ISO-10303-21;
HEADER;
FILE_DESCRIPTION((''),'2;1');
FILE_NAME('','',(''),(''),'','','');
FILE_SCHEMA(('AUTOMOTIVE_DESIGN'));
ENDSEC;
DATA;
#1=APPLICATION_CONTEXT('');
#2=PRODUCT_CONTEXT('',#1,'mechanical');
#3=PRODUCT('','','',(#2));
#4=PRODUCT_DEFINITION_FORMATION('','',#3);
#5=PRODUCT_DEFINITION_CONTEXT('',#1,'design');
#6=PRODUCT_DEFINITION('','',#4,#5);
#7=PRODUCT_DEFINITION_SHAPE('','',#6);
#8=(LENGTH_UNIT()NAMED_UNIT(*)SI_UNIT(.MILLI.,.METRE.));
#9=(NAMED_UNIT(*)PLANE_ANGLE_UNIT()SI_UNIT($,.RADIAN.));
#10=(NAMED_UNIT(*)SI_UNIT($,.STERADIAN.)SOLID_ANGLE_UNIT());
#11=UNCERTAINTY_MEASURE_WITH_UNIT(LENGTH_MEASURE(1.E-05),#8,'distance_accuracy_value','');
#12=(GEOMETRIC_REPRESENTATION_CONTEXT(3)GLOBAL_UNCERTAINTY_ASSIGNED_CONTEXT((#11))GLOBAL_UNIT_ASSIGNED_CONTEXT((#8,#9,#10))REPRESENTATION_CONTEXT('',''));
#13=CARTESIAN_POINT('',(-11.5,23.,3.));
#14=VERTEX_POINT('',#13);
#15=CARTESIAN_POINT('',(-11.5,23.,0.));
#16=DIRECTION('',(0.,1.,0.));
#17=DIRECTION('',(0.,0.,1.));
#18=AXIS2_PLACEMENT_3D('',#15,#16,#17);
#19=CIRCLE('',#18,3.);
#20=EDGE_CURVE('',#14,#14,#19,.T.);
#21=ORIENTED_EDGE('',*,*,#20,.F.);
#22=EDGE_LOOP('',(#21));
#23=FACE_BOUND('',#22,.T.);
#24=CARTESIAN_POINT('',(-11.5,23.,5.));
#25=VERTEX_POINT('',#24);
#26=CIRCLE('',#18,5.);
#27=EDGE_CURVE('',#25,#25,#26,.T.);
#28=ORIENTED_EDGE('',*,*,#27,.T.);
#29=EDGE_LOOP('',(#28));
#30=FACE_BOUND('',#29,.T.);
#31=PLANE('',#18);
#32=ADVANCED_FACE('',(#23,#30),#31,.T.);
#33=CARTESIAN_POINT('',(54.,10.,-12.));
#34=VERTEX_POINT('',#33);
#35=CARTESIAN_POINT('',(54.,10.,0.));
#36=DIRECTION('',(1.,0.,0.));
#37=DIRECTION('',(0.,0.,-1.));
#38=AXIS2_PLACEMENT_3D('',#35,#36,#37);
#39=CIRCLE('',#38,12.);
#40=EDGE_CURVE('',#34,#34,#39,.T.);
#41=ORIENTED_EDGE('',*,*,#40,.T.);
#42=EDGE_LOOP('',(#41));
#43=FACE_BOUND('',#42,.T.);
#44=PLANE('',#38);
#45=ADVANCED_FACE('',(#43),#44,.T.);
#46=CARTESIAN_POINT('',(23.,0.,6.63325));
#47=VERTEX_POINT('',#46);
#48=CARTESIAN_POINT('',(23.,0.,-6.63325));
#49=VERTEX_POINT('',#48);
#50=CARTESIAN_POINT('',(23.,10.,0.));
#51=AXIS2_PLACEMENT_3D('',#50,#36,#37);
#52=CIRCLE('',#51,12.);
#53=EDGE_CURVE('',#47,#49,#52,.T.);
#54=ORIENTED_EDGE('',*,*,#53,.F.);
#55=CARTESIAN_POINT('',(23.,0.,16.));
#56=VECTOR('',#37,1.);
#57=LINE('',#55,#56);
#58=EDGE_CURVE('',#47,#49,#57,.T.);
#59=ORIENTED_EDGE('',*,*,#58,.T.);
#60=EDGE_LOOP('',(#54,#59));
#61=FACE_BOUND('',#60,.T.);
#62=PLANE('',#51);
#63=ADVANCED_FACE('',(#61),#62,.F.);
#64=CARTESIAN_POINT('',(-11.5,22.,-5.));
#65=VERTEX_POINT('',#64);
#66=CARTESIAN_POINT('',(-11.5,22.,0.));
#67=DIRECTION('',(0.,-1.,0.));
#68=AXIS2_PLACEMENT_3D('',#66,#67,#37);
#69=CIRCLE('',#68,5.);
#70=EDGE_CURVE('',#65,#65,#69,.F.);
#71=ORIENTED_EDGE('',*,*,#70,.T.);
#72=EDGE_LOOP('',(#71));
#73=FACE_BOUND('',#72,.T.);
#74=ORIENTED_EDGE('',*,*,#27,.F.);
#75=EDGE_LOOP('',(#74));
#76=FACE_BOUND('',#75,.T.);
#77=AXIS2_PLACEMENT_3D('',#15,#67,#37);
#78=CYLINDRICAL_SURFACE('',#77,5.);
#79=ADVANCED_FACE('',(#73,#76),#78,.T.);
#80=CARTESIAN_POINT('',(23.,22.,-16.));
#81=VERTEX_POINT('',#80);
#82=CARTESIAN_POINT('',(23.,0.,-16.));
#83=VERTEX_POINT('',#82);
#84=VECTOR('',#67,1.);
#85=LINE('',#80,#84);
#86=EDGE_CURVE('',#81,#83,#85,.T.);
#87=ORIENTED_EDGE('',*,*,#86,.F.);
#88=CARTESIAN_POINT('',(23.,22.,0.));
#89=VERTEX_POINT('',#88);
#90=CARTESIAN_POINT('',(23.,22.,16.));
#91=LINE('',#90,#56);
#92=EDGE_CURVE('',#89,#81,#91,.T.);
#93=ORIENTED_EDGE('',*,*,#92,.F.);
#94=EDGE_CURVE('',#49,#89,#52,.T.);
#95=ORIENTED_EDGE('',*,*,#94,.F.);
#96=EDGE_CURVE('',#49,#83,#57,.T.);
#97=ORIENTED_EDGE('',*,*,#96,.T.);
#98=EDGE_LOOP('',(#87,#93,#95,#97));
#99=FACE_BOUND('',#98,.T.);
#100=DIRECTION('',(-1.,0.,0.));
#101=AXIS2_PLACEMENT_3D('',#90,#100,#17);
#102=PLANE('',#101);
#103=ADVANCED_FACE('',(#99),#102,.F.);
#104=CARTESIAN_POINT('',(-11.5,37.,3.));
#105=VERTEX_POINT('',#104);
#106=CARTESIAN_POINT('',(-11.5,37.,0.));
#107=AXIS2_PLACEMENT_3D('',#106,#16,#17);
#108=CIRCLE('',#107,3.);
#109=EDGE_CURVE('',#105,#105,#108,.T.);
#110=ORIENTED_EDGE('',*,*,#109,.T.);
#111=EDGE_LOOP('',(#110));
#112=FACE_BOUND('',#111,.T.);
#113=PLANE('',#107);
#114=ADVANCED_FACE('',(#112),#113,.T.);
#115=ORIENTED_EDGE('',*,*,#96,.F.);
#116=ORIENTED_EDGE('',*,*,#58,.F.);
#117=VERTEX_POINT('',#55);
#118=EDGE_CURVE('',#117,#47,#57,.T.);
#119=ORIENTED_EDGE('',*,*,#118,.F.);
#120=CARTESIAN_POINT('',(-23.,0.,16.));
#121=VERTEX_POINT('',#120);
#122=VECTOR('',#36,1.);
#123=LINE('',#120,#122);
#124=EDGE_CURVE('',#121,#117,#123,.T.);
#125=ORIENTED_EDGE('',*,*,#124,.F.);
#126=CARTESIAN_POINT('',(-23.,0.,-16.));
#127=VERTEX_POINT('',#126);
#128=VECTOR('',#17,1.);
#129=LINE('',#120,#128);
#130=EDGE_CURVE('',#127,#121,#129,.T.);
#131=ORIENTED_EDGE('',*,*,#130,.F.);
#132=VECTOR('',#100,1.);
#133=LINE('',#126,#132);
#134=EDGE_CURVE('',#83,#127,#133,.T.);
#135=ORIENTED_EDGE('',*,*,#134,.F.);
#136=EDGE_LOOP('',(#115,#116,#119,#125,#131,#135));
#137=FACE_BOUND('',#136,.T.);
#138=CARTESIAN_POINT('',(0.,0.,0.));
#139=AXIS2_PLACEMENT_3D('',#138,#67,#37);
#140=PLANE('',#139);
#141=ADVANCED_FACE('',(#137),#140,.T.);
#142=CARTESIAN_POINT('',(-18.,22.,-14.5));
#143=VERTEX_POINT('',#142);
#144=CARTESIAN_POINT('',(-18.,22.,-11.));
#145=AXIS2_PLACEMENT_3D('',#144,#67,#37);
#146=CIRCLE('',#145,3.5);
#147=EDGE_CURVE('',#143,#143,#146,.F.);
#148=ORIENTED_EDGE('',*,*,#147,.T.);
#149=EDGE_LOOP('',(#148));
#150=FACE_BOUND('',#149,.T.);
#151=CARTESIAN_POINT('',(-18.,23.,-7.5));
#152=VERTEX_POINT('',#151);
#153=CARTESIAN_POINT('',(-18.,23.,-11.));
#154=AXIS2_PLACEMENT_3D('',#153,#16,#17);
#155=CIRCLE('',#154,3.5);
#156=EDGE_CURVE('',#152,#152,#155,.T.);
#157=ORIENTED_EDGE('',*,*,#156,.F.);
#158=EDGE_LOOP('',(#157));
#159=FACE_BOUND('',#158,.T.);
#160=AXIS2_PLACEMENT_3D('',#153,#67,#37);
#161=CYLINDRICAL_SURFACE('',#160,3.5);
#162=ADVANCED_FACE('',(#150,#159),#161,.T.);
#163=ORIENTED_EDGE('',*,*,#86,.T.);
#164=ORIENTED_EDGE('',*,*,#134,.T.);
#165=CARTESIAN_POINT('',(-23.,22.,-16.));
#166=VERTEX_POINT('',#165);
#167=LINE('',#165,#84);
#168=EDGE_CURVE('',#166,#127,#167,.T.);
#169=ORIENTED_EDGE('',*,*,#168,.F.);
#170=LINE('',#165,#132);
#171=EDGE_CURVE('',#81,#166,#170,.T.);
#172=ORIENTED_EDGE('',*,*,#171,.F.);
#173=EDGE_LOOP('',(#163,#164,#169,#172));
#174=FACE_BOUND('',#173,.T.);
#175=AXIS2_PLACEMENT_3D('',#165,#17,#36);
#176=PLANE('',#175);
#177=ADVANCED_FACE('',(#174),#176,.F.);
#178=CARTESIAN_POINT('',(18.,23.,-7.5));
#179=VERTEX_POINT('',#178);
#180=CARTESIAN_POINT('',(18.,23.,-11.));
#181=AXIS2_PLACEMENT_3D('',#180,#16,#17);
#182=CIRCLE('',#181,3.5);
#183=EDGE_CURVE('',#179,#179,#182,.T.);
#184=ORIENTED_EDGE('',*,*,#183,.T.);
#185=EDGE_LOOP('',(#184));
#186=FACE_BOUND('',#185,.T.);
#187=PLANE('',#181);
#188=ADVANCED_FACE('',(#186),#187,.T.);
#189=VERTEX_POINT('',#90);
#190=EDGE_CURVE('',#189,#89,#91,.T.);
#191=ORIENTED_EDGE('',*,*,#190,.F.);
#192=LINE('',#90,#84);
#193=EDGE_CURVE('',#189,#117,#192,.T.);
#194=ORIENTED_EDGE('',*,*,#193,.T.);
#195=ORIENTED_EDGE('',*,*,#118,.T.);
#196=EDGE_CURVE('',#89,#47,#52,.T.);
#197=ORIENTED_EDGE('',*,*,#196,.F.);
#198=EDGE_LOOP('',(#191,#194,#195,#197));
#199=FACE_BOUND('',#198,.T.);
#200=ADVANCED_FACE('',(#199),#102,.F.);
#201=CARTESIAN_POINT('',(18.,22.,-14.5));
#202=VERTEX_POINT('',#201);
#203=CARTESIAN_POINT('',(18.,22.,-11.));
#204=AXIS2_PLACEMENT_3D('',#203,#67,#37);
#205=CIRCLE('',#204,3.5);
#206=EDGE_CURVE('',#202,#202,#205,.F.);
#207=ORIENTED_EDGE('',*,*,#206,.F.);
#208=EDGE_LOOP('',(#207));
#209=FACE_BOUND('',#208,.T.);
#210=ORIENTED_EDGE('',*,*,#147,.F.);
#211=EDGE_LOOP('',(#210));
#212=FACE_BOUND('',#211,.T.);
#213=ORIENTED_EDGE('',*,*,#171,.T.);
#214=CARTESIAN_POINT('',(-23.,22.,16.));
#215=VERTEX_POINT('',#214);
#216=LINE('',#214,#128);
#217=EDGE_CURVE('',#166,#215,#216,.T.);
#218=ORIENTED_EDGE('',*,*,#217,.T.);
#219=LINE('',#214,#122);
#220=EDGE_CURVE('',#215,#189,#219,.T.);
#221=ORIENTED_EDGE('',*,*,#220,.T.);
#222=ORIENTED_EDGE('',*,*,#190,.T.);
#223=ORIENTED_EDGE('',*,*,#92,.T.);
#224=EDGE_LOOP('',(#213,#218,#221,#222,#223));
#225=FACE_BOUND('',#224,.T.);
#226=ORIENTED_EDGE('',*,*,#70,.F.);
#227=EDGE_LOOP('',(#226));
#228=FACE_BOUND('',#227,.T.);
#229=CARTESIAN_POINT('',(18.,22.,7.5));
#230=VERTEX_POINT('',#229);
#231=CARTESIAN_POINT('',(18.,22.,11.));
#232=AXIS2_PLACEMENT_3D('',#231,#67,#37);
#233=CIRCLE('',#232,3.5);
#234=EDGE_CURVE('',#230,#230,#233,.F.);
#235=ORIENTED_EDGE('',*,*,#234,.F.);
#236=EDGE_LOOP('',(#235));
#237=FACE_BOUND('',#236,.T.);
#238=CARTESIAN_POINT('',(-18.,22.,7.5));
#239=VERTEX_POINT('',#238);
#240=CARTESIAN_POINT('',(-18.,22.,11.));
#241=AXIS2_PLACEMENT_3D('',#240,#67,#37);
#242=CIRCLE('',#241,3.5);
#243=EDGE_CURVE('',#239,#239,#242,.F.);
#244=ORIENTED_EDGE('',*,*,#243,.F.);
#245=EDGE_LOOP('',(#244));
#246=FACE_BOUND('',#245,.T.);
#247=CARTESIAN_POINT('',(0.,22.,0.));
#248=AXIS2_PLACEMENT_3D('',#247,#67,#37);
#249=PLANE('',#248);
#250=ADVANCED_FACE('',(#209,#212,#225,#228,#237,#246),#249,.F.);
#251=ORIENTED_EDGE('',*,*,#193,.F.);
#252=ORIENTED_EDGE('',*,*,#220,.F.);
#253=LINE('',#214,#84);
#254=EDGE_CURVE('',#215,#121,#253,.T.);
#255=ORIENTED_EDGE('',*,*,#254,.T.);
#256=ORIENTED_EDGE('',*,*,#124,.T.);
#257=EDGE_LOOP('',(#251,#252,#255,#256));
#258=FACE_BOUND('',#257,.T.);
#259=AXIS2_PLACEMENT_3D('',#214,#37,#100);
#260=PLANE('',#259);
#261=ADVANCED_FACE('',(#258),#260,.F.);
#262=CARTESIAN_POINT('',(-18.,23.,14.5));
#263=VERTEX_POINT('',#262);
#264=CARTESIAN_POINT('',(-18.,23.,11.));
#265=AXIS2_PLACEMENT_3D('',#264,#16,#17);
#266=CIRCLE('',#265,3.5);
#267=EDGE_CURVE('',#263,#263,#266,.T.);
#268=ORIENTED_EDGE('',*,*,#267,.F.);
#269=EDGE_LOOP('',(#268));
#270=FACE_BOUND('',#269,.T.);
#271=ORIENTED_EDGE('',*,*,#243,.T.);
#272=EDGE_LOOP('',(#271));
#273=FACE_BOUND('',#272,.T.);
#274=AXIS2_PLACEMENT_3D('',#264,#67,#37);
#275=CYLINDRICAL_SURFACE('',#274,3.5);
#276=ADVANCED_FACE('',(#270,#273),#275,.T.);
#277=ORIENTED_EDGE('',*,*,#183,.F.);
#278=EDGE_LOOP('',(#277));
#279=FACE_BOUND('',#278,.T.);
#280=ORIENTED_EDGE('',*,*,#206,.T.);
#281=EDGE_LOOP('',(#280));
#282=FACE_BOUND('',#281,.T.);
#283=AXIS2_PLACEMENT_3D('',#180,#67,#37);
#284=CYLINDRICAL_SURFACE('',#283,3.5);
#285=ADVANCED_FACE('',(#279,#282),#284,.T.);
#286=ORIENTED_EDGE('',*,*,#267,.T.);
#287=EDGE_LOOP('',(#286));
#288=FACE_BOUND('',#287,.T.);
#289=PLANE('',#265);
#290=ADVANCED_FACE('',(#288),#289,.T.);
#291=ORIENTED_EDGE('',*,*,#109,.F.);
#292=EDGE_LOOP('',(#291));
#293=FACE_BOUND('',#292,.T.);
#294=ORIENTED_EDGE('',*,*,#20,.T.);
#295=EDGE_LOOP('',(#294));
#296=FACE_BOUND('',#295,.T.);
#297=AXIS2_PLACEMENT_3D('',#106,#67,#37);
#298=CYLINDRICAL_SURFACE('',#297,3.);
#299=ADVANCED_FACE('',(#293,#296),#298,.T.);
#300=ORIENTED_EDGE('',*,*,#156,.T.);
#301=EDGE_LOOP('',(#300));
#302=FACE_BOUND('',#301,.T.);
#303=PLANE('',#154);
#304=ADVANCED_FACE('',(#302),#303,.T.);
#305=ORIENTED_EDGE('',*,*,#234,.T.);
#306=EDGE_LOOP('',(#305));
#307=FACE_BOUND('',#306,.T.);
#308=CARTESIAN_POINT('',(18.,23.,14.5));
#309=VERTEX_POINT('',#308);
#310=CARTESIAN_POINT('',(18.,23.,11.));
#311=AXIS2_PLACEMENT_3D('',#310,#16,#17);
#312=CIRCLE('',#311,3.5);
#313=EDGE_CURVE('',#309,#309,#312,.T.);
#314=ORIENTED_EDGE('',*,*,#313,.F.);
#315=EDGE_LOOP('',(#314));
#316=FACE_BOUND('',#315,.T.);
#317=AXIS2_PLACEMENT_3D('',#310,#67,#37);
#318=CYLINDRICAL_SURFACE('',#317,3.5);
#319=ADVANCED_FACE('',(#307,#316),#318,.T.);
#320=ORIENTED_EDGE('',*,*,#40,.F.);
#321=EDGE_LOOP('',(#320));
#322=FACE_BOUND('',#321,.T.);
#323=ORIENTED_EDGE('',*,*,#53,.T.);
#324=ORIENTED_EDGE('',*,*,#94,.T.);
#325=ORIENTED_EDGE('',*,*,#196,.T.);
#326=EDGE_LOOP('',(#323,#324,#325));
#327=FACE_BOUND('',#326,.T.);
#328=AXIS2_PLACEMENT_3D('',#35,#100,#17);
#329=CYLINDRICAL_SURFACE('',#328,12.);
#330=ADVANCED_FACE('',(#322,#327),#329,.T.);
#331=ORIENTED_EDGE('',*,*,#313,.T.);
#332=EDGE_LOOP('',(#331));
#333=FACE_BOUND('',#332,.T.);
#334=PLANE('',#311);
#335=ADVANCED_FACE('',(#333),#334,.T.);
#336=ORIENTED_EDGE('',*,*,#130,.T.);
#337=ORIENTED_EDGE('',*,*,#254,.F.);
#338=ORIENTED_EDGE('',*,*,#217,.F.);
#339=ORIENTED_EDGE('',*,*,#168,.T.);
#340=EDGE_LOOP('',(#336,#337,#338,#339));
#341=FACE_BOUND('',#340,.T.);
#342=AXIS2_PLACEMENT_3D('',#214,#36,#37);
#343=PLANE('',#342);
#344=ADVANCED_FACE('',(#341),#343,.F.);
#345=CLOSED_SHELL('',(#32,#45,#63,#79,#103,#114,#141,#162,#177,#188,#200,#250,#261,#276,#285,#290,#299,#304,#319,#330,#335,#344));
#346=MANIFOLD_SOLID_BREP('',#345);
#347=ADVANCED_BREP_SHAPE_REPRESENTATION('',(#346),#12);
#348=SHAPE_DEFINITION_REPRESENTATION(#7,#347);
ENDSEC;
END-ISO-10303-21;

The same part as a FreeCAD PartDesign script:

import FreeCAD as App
import Part
import Sketcher
from FreeCAD import Vector
Q = App.Units.Quantity

doc = App.newDocument("Part")
body = doc.addObject("PartDesign::Body", "Body")

sketch1 = doc.addObject("Sketcher::SketchObject", "Sketch")
body.addObject(sketch1)
sketch1.AttachmentSupport = (doc.XZ_Plane, [""])
sketch1.MapMode = "FlatFace"
sketch1.addGeometry([
    Part.LineSegment(Vector(-23, -16, 0), Vector(-23, 16, 0)),
    Part.LineSegment(Vector(-23, 16, 0), Vector(23, 16, 0)),
    Part.LineSegment(Vector(23, 16, 0), Vector(23, -16, 0)),
    Part.LineSegment(Vector(23, -16, 0), Vector(-23, -16, 0)),
], False)
sketch1.addConstraint([
    Sketcher.Constraint("Coincident", 0, 2, 1, 1),
    Sketcher.Constraint("Coincident", 1, 2, 2, 1),
    Sketcher.Constraint("Coincident", 2, 2, 3, 1),
    Sketcher.Constraint("Coincident", 3, 2, 0, 1),
    Sketcher.Constraint("Vertical", 0),
    Sketcher.Constraint("Horizontal", 1),
    Sketcher.Constraint("Vertical", 2),
    Sketcher.Constraint("Horizontal", 3),
    Sketcher.Constraint("Symmetric", 0, 2, 2, 2, -1, 1),
    Sketcher.Constraint("DistanceX", 1, 1, 1, 2, Q("46 mm")),
    Sketcher.Constraint("DistanceY", 0, 1, 0, 2, Q("32 mm")),
])
pad1 = doc.addObject("PartDesign::Pad", "Pad")
body.addObject(pad1)
pad1.Profile = sketch1
pad1.Length = 22
pad1.Reversed = True

sketch2 = doc.addObject("Sketcher::SketchObject", "Sketch001")
body.addObject(sketch2)
sketch2.AttachmentSupport = (doc.YZ_Plane, [""])
sketch2.MapMode = "FlatFace"
sketch2.AttachmentOffset = App.Placement(Vector(0, 0, 23), App.Rotation())
sketch2.addGeometry(Part.Circle(Vector(10, 0, 0), Vector(0, 0, 1), 12), False)
sketch2.addConstraint([
    Sketcher.Constraint("PointOnObject", 0, 3, -1),
    Sketcher.Constraint("Diameter", 0, Q("24 mm")),
    Sketcher.Constraint("DistanceX", -1, 1, 0, 3, Q("10 mm")),
])
pad2 = doc.addObject("PartDesign::Pad", "Pad001")
body.addObject(pad2)
pad2.Profile = sketch2
pad2.Length = 31

sketch3 = doc.addObject("Sketcher::SketchObject", "Sketch002")
body.addObject(sketch3)
sketch3.AttachmentSupport = (doc.XZ_Plane, [""])
sketch3.MapMode = "FlatFace"
sketch3.AttachmentOffset = App.Placement(Vector(0, 0, -22), App.Rotation())
sketch3.addGeometry(Part.Circle(Vector(-12, 0, 0), Vector(0, 0, 1), 5), False)
sketch3.addConstraint([
    Sketcher.Constraint("PointOnObject", 0, 3, -1),
    Sketcher.Constraint("Diameter", 0, Q("10 mm")),
    Sketcher.Constraint("DistanceX", 0, 3, -1, 1, Q("11.5 mm")),
])
pad3 = doc.addObject("PartDesign::Pad", "Pad002")
body.addObject(pad3)
pad3.Profile = sketch3
pad3.Length = 1
pad3.Reversed = True

sketch4 = doc.addObject("Sketcher::SketchObject", "Sketch003")
body.addObject(sketch4)
sketch4.AttachmentSupport = (doc.XZ_Plane, [""])
sketch4.MapMode = "FlatFace"
sketch4.AttachmentOffset = App.Placement(Vector(0, 0, -23), App.Rotation())
sketch4.addGeometry(Part.Circle(Vector(-11.5, 0, 0), Vector(0, 0, 1), 3), False)
sketch4.addConstraint([
    Sketcher.Constraint("PointOnObject", 0, 3, -1),
    Sketcher.Constraint("Diameter", 0, Q("6 mm")),
    Sketcher.Constraint("DistanceX", 0, 3, -1, 1, Q("11.5 mm")),
])
pad4 = doc.addObject("PartDesign::Pad", "Pad003")
body.addObject(pad4)
pad4.Profile = sketch4
pad4.Length = 14
pad4.Reversed = True

sketch5 = doc.addObject("Sketcher::SketchObject", "Sketch004")
body.addObject(sketch5)
sketch5.AttachmentSupport = (doc.XZ_Plane, [""])
sketch5.MapMode = "FlatFace"
sketch5.AttachmentOffset = App.Placement(Vector(0, 0, -22), App.Rotation())
sketch5.addGeometry([
    Part.Circle(Vector(18, -11, 0), Vector(0, 0, 1), 3.5),
    Part.Circle(Vector(18, 11, 0), Vector(0, 0, 1), 3.5),
    Part.Circle(Vector(-18, 11, 0), Vector(0, 0, 1), 3.5),
    Part.Circle(Vector(-18, -11, 0), Vector(0, 0, 1), 3.5),
], False)
sketch5.addConstraint([
    Sketcher.Constraint("Equal", 0, 1),
    Sketcher.Constraint("Equal", 1, 2),
    Sketcher.Constraint("Equal", 2, 3),
    Sketcher.Constraint("Symmetric", 0, 3, 2, 3, -1, 1),
    Sketcher.Constraint("Symmetric", 1, 3, 3, 3, -1, 1),
    Sketcher.Constraint("Symmetric", 1, 3, 2, 3, -2),
    Sketcher.Constraint("Diameter", 0, Q("7 mm")),
    Sketcher.Constraint("DistanceX", -1, 1, 0, 3, Q("18 mm")),
    Sketcher.Constraint("DistanceY", 0, 3, -1, 1, Q("11 mm")),
])
pad5 = doc.addObject("PartDesign::Pad", "Pad004")
body.addObject(pad5)
pad5.Profile = sketch5
pad5.Length = 1
pad5.Reversed = True

doc.recompute()
